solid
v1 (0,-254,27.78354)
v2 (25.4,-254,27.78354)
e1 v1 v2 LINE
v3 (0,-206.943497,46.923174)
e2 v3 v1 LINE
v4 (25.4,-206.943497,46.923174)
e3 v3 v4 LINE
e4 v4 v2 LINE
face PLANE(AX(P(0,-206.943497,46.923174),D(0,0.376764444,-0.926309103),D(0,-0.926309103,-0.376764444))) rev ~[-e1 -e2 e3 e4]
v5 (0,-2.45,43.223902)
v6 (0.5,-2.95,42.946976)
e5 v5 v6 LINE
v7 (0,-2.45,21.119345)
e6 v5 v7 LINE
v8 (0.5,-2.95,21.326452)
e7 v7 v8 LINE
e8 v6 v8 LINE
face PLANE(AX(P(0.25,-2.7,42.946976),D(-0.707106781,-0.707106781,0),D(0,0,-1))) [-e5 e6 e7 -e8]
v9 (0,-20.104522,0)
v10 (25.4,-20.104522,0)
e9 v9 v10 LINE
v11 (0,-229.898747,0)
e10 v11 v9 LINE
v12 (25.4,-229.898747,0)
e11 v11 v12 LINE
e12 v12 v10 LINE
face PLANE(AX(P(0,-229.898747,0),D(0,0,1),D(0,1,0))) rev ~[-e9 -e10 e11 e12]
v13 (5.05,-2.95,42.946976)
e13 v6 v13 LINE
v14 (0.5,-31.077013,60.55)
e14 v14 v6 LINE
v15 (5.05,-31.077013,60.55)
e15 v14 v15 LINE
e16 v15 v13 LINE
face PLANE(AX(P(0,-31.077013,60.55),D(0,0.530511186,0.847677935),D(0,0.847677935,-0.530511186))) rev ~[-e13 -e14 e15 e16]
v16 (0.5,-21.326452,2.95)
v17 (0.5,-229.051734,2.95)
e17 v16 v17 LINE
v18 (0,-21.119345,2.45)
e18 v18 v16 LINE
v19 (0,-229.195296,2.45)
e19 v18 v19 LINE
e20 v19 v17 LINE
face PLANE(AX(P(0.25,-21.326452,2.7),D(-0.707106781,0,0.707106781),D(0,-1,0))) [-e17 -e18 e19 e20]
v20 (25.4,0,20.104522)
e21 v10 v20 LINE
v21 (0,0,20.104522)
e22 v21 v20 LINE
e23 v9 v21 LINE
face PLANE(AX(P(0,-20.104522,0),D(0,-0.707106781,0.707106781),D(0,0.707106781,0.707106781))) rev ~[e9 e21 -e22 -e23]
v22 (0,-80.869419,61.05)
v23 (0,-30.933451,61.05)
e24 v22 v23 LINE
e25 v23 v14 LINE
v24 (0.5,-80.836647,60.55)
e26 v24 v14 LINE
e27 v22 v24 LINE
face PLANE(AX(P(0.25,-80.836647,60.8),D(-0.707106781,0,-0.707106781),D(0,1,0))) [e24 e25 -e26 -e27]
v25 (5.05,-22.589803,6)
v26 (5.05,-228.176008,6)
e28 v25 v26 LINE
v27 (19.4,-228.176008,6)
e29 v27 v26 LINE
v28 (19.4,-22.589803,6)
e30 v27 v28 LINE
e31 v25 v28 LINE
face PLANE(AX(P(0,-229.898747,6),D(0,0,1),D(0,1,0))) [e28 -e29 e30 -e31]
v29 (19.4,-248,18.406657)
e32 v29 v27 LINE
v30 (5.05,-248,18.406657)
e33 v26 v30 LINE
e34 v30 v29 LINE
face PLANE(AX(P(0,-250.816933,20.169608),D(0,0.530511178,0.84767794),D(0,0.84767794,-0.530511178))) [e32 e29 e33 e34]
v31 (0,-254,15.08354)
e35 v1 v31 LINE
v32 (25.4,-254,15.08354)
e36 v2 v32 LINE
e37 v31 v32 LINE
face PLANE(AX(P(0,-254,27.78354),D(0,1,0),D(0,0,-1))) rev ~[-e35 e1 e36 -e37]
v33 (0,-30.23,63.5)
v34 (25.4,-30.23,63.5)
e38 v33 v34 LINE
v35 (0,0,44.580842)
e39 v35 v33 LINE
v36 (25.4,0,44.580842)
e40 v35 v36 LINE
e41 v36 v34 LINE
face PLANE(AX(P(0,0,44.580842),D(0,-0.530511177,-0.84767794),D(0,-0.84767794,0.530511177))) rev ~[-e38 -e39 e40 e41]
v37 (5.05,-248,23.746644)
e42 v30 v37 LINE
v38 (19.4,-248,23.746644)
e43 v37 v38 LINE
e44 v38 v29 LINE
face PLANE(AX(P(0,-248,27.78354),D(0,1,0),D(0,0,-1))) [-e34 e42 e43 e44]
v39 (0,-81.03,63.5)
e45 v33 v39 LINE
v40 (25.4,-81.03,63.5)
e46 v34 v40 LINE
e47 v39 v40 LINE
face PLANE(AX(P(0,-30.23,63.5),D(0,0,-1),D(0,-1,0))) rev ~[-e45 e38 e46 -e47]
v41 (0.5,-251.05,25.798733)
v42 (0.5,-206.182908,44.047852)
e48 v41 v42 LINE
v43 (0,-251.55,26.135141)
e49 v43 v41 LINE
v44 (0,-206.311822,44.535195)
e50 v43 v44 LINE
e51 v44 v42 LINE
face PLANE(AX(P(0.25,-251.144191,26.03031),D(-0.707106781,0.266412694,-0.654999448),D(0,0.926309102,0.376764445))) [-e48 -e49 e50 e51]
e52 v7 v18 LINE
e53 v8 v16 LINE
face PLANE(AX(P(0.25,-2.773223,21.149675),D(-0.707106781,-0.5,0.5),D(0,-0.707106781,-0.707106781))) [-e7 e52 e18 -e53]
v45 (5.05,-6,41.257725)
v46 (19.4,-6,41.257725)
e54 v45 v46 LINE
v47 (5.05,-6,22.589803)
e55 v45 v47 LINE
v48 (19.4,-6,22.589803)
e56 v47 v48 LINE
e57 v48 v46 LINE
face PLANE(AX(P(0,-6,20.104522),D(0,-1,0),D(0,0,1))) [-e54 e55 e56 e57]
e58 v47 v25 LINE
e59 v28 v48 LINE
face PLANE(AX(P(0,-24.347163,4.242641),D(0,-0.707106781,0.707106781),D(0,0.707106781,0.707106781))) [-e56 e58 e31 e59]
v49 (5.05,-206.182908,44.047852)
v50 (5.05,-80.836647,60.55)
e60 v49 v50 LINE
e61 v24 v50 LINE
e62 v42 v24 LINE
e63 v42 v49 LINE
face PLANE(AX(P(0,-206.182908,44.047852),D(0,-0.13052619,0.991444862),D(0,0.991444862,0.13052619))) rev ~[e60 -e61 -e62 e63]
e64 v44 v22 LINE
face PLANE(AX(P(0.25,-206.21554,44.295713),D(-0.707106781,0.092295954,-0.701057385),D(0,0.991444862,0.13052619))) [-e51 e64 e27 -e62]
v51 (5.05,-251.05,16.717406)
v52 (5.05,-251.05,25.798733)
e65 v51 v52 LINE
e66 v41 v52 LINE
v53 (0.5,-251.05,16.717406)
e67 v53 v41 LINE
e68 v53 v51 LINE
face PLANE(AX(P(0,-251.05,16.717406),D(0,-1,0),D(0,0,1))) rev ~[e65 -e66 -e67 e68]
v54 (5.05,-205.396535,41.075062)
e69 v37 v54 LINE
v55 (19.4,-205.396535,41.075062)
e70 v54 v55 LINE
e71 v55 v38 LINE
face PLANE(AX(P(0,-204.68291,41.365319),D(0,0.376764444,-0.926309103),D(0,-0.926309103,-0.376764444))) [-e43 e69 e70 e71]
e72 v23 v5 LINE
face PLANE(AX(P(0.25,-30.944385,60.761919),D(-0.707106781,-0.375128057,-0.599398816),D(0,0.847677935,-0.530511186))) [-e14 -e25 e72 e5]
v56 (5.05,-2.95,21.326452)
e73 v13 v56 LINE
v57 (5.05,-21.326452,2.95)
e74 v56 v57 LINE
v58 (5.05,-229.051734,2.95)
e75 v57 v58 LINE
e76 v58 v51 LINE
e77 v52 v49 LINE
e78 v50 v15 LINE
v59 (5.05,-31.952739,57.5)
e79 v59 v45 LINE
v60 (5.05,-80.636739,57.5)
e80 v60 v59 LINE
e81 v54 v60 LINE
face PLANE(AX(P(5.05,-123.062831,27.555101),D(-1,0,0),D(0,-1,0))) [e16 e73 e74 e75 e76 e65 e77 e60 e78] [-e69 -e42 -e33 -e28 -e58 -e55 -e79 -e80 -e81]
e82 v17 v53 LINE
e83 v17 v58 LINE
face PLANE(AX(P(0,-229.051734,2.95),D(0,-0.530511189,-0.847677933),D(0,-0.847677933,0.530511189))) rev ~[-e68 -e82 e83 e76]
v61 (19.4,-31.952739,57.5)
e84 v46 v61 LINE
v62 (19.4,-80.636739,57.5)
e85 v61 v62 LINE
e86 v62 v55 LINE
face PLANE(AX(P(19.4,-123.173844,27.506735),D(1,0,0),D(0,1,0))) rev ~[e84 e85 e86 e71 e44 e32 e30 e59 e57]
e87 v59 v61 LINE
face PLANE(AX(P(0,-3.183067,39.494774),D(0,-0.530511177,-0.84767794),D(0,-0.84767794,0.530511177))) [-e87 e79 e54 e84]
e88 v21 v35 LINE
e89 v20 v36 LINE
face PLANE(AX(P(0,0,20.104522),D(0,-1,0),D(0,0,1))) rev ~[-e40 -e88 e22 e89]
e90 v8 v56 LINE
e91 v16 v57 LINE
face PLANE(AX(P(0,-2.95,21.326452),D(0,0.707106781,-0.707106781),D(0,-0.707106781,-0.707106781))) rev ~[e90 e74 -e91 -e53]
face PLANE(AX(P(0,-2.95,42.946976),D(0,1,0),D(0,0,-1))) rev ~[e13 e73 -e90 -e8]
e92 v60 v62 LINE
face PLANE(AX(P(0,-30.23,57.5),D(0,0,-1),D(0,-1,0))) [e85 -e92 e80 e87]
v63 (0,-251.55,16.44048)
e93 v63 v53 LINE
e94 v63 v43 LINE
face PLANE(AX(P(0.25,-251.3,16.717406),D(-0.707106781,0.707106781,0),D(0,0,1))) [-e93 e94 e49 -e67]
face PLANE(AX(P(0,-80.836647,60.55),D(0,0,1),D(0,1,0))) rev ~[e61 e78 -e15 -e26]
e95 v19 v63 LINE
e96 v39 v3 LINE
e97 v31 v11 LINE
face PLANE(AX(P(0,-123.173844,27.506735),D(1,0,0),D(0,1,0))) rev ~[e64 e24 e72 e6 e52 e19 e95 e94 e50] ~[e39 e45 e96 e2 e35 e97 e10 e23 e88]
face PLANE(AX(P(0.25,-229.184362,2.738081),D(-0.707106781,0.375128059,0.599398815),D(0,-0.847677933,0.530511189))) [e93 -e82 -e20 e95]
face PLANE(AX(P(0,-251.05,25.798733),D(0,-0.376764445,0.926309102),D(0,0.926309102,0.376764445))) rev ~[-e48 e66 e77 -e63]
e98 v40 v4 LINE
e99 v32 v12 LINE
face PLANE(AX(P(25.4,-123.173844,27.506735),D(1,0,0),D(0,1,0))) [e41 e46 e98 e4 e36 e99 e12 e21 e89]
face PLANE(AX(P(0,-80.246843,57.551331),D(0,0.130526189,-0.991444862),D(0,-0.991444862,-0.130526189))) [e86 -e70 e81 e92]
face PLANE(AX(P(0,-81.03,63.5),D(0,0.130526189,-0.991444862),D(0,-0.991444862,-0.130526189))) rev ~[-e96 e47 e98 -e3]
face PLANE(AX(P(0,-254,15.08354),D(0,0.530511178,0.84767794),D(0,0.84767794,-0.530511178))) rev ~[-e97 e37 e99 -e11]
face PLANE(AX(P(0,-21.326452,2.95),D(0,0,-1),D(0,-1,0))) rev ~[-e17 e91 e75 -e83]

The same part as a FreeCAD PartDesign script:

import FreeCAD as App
import Part
import Sketcher
from FreeCAD import Vector
Q = App.Units.Quantity


def edges_at(feature, points):
    """Names of the edges that pass closest to the given points."""
    edges = feature.Shape.Edges
    near = lambda p: min(range(len(edges)), key=lambda i: edges[i].distToShape(Part.Vertex(*p))[0])
    return sorted({f"Edge{near(p) + 1}" for p in points})


def faces_at(feature, points):
    """Names of the faces that lie closest to the given points."""
    faces = feature.Shape.Faces
    near = lambda p: min(range(len(faces)), key=lambda i: faces[i].distToShape(Part.Vertex(*p))[0])
    return sorted({f"Face{near(p) + 1}" for p in points})

doc = App.newDocument("Part")
body = doc.addObject("PartDesign::Body", "Body")

sketch1 = body.newObject("Sketcher::SketchObject", "Sketch")
sketch1.AttachmentSupport = (doc.getObject("YZ_Plane"), [""])
sketch1.MapMode = "FlatFace"
sketch1.addGeometry([
    Part.LineSegment(Vector(-229.898747, 0, 0), Vector(-20.104522, 0, 0)),
    Part.LineSegment(Vector(-20.104522, 0, 0), Vector(0, 20.104522, 0)),
    Part.LineSegment(Vector(0, 20.104522, 0), Vector(0, 44.580842, 0)),
    Part.LineSegment(Vector(0, 44.580842, 0), Vector(-30.23, 63.5, 0)),
    Part.LineSegment(Vector(-30.23, 63.5, 0), Vector(-81.03, 63.5, 0)),
    Part.LineSegment(Vector(-81.03, 63.5, 0), Vector(-206.943497, 46.923174, 0)),
    Part.LineSegment(Vector(-206.943497, 46.923174, 0), Vector(-254, 27.78354, 0)),
    Part.LineSegment(Vector(-254, 27.78354, 0), Vector(-254, 15.08354, 0)),
    Part.LineSegment(Vector(-254, 15.08354, 0), Vector(-229.898747, 0, 0)),
], False)
sketch1.addConstraint([
    Sketcher.Constraint("Coincident", 0, 2, 1, 1),
    Sketcher.Constraint("Coincident", 1, 2, 2, 1),
    Sketcher.Constraint("Coincident", 2, 2, 3, 1),
    Sketcher.Constraint("Coincident", 3, 2, 4, 1),
    Sketcher.Constraint("Coincident", 4, 2, 5, 1),
    Sketcher.Constraint("Coincident", 5, 2, 6, 1),
    Sketcher.Constraint("Coincident", 6, 2, 7, 1),
    Sketcher.Constraint("Coincident", 7, 2, 8, 1),
    Sketcher.Constraint("Coincident", 8, 2, 0, 1),
    Sketcher.Constraint("Horizontal", 0),
    Sketcher.Constraint("Vertical", 2),
    Sketcher.Constraint("Horizontal", 4),
    Sketcher.Constraint("Vertical", 7),
    Sketcher.Constraint("PointOnObject", 0, 2, -1),
    Sketcher.Constraint("PointOnObject", 1, 2, -2),
    Sketcher.Constraint("Parallel", 3, 8),
    Sketcher.Constraint("Equal", 1, 8),
    Sketcher.Constraint("DistanceX", 4, 2, 4, 1, Q("2 in")),
    Sketcher.Constraint("Distance", 5, Q("5 in")),
    Sketcher.Constraint("Distance", 6, Q("2 in")),
    Sketcher.Constraint("DistanceY", 7, 2, 7, 1, Q("0.5 in")),
    Sketcher.Constraint("DistanceX", 6, 2, -1, 1, Q("10 in")),
    Sketcher.Constraint("Angle", 1, Q("45 deg")),
    Sketcher.Constraint("DistanceY", -1, 1, 3, 2, Q("2.5 in")),
    Sketcher.Constraint("Angle", 5, Q("-172.5 deg")),
    Sketcher.Constraint("Angle", 3, Q("147.96 deg")),
    Sketcher.Constraint("DistanceY", 2, 1, 2, 2, 24.47632),
])
pad1 = body.newObject("PartDesign::Pad", "Pad")
pad1.Profile = sketch1
pad1.Length = Q("1 in")
doc.recompute()

thickness = body.newObject("PartDesign::Thickness", "Thickness")
thickness.Base = (pad1, faces_at(pad1, [(0, -127, 31.75)]))
thickness.Value = 6
thickness.Reversed = True
thickness.Join = "Intersection"

sketch2 = body.newObject("Sketcher::SketchObject", "Sketch001")
sketch2.AttachmentSupport = (doc.getObject("YZ_Plane"), [""])
sketch2.MapMode = "FlatFace"
sketch2.addGeometry([
    Part.LineSegment(Vector(-206.182908, 44.047852, 0), Vector(-251.05, 25.798733, 0)),
    Part.LineSegment(Vector(-251.05, 25.798733, 0), Vector(-251.05, 16.717406, 0)),
    Part.LineSegment(Vector(-251.05, 16.717406, 0), Vector(-229.051734, 2.95, 0)),
    Part.LineSegment(Vector(-229.051734, 2.95, 0), Vector(-21.326452, 2.95, 0)),
    Part.LineSegment(Vector(-21.326452, 2.95, 0), Vector(-2.95, 21.326452, 0)),
    Part.LineSegment(Vector(-2.95, 21.326452, 0), Vector(-2.95, 42.946976, 0)),
    Part.LineSegment(Vector(-2.95, 42.946976, 0), Vector(-31.077013, 60.55, 0)),
    Part.LineSegment(Vector(-31.077013, 60.55, 0), Vector(-80.836647, 60.55, 0)),
    Part.LineSegment(Vector(-80.836647, 60.55, 0), Vector(-206.182908, 44.047852, 0)),
    Part.LineSegment(Vector(-80.636739, 57.5, 0), Vector(-31.952739, 57.5, 0)),
    Part.LineSegment(Vector(-31.952739, 57.5, 0), Vector(-6, 41.257725, 0)),
    Part.LineSegment(Vector(-6, 41.257725, 0), Vector(-6, 22.589803, 0)),
    Part.LineSegment(Vector(-6, 22.589803, 0), Vector(-22.589803, 6, 0)),
    Part.LineSegment(Vector(-22.589803, 6, 0), Vector(-228.176008, 6, 0)),
    Part.LineSegment(Vector(-228.176008, 6, 0), Vector(-248, 18.406657, 0)),
    Part.LineSegment(Vector(-248, 18.406657, 0), Vector(-248, 23.746644, 0)),
    Part.LineSegment(Vector(-248, 23.746644, 0), Vector(-205.396535, 41.075061, 0)),
    Part.LineSegment(Vector(-205.396535, 41.075061, 0), Vector(-80.636739, 57.5, 0)),
], False)
sketch2.addConstraint([
    Sketcher.Constraint("Coincident", 0, 2, 1, 1),
    Sketcher.Constraint("Coincident", 1, 2, 2, 1),
    Sketcher.Constraint("Coincident", 2, 2, 3, 1),
    Sketcher.Constraint("Coincident", 3, 2, 4, 1),
    Sketcher.Constraint("Coincident", 4, 2, 5, 1),
    Sketcher.Constraint("Coincident", 5, 2, 6, 1),
    Sketcher.Constraint("Coincident", 6, 2, 7, 1),
    Sketcher.Constraint("Coincident", 7, 2, 8, 1),
    Sketcher.Constraint("Coincident", 8, 2, 0, 1),
    Sketcher.Constraint("Coincident", 9, 2, 10, 1),
    Sketcher.Constraint("Coincident", 10, 2, 11, 1),
    Sketcher.Constraint("Coincident", 11, 2, 12, 1),
    Sketcher.Constraint("Coincident", 12, 2, 13, 1),
    Sketcher.Constraint("Coincident", 13, 2, 14, 1),
    Sketcher.Constraint("Coincident", 14, 2, 15, 1),
    Sketcher.Constraint("Coincident", 15, 2, 16, 1),
    Sketcher.Constraint("Coincident", 16, 2, 17, 1),
    Sketcher.Constraint("Coincident", 17, 2, 9, 1),
    Sketcher.Constraint("Vertical", 1),
    Sketcher.Constraint("Horizontal", 3),
    Sketcher.Constraint("Vertical", 5),
    Sketcher.Constraint("Horizontal", 7),
    Sketcher.Constraint("Horizontal", 9),
    Sketcher.Constraint("Vertical", 11),
    Sketcher.Constraint("Horizontal", 13),
    Sketcher.Constraint("Vertical", 15),
    Sketcher.Constraint("Parallel", 2, 6),
    Sketcher.Constraint("Parallel", 6, 10),
    Sketcher.Constraint("Parallel", 4, 12),
    Sketcher.Constraint("Parallel", 10, 14),
    Sketcher.Constraint("Parallel", 0, 16),
    Sketcher.Constraint("Parallel", 8, 17),
    Sketcher.Constraint("Angle", 4, Q("45 deg")),
    Sketcher.Constraint("Angle", 8, Q("-172.5 deg")),
    Sketcher.Constraint("Angle", 2, Q("-32.04 deg")),
    Sketcher.Constraint("DistanceX", 9, 1, 9, 2, 48.684),
    Sketcher.Constraint("DistanceX", 0, 2, -1, 1, 251.05),
    Sketcher.Constraint("DistanceY", -1, 1, 2, 2, 2.95),
    Sketcher.Constraint("DistanceX", 4, 2, -1, 1, 2.95),
    Sketcher.Constraint("DistanceY", -1, 1, 6, 2, 60.55),
    Sketcher.Constraint("DistanceY", -1, 1, 9, 2, 57.5),
    Sketcher.Constraint("DistanceX", 10, 2, -1, 1, 6.0),
    Sketcher.Constraint("DistanceY", -1, 1, 12, 2, 6.0),
    Sketcher.Constraint("DistanceX", 14, 2, -1, 1, 248.0),
    Sketcher.Constraint("DistanceX", 13, 2, 8, 2, 21.9931),
    Sketcher.Constraint("DistanceX", 2, 2, 16, 2, 23.655199),
    Sketcher.Constraint("Distance", 6, 33.181249),
    Sketcher.Constraint("Distance", 8, 126.427869),
    Sketcher.Constraint("Distance", 14, 23.386231),
    Sketcher.Constraint("Distance", 16, 45.992709),
    Sketcher.Constraint("DistanceX", 3, 1, 3, 2, 207.725282),
    Sketcher.Constraint("DistanceX", 13, 2, 13, 1, 205.586205),
    Sketcher.Constraint("DistanceY", 1, 2, 1, 1, 9.081327),
    Sketcher.Constraint("DistanceY", 11, 2, 11, 1, 18.667922),
])
pocket1 = body.newObject("PartDesign::Pocket", "Pocket")
pocket1.Profile = sketch2
pocket1.Length = 5.05
pocket1.Reversed = True
doc.recompute()

chamfer = body.newObject("PartDesign::Chamfer", "Chamfer")
chamfer.Base = (pocket1, edges_at(pocket1, [
    (0, -17.014, 51.748),
    (0, -55.957, 60.55),
    (0, -143.51, 52.299),
    (0, -228.616, 34.923),
    (0, -251.05, 21.258),
    (0, -240.051, 9.834),
    (0, -125.189, 2.95),
    (0, -12.138, 12.138),
    (0, -2.95, 32.137),
]))
chamfer.Size = 0.5

doc.recompute()
